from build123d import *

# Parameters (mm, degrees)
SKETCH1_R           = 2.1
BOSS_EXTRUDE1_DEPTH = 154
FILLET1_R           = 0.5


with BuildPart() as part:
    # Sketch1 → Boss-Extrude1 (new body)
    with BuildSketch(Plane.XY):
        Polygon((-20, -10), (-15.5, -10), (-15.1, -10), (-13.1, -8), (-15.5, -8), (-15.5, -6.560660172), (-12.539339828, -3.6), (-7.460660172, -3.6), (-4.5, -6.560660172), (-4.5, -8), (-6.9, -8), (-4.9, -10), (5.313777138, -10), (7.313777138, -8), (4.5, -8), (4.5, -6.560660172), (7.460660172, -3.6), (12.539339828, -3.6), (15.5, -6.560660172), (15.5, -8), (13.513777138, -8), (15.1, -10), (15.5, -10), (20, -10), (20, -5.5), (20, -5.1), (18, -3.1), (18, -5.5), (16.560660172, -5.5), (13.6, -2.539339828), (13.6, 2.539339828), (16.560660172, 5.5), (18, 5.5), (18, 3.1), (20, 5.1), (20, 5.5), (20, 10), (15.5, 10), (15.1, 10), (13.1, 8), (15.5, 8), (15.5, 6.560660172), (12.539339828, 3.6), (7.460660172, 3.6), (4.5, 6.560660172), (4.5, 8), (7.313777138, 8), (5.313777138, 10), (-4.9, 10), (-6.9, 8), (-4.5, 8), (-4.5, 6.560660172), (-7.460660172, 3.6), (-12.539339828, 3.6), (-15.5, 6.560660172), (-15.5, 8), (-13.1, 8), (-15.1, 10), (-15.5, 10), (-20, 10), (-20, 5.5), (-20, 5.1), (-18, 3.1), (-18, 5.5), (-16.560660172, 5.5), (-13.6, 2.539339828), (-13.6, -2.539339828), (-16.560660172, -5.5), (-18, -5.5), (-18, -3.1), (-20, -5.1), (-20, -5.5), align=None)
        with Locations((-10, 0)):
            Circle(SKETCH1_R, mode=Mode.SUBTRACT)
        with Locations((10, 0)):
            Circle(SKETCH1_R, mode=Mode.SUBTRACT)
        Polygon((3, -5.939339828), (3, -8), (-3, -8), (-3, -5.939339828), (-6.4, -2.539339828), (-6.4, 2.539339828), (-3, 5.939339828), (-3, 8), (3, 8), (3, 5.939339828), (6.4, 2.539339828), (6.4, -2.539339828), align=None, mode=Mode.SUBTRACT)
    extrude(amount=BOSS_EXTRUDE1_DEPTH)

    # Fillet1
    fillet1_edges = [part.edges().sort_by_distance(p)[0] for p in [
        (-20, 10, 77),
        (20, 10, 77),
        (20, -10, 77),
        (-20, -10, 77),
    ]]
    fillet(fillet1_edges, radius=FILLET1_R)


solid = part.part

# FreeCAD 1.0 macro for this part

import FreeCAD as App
import Part
import Sketcher
from FreeCAD import Vector


def edges_at(feature, points):
    """Names of the edges that pass closest to the given points."""
    edges = feature.Shape.Edges
    near = lambda p: min(range(len(edges)), key=lambda i: edges[i].distToShape(Part.Vertex(*p))[0])
    return sorted({f"Edge{near(p) + 1}" for p in points})

doc = App.newDocument("Part")
params = doc.addObject("Spreadsheet::Sheet", "Params")
for row, (alias, value) in enumerate([
    ("sketch1_diameter", "4.2 mm"),
    ("sketch1_width", "6 mm"),
    ("sketch1_width2", "4.9 mm"),
    ("sketch1_width3", "2.4 mm"),
    ("pad1_length", "154 mm"),
    ("fillet_radius", "0.5 mm"),
], start=1):
    params.set(f"A{row}", alias)
    params.set(f"B{row}", "=" + value)
    params.setAlias(f"B{row}", alias)

body = doc.addObject("PartDesign::Body", "Body")

# Sketch on XY plane
sketch1 = body.newObject("Sketcher::SketchObject", "Sketch")
sketch1.AttachmentSupport = (doc.getObject("XY_Plane"), [""])
sketch1.MapMode = "FlatFace"
sketch1.addGeometry(Part.LineSegment(Vector(-20, -10, 0), Vector(-15.1, -10, 0)), False)
sketch1.addGeometry(Part.LineSegment(Vector(-15.1, -10, 0), Vector(-13.1, -8, 0)), False)
sketch1.addGeometry(Part.LineSegment(Vector(-13.1, -8, 0), Vector(-15.5, -8, 0)), False)
sketch1.addGeometry(Part.LineSegment(Vector(-15.5, -8, 0), Vector(-15.5, -6.56066, 0)), False)
sketch1.addGeometry(Part.LineSegment(Vector(-15.5, -6.56066, 0), Vector(-12.53934, -3.6, 0)), False)
sketch1.addGeometry(Part.LineSegment(Vector(-12.53934, -3.6, 0), Vector(-7.46066, -3.6, 0)), False)
sketch1.addGeometry(Part.LineSegment(Vector(-7.46066, -3.6, 0), Vector(-4.5, -6.56066, 0)), False)
sketch1.addGeometry(Part.LineSegment(Vector(-4.5, -6.56066, 0), Vector(-4.5, -8, 0)), False)
sketch1.addGeometry(Part.LineSegment(Vector(-4.5, -8, 0), Vector(-6.9, -8, 0)), False)
sketch1.addGeometry(Part.LineSegment(Vector(-6.9, -8, 0), Vector(-4.9, -10, 0)), False)
sketch1.addGeometry(Part.LineSegment(Vector(-4.9, -10, 0), Vector(5.313777, -10, 0)), False)
sketch1.addGeometry(Part.LineSegment(Vector(5.313777, -10, 0), Vector(7.313777, -8, 0)), False)
sketch1.addGeometry(Part.LineSegment(Vector(7.313777, -8, 0), Vector(4.5, -8, 0)), False)
sketch1.addGeometry(Part.LineSegment(Vector(4.5, -8, 0), Vector(4.5, -6.56066, 0)), False)
sketch1.addGeometry(Part.LineSegment(Vector(4.5, -6.56066, 0), Vector(7.46066, -3.6, 0)), False)
sketch1.addGeometry(Part.LineSegment(Vector(7.46066, -3.6, 0), Vector(12.53934, -3.6, 0)), False)
sketch1.addGeometry(Part.LineSegment(Vector(12.53934, -3.6, 0), Vector(15.5, -6.56066, 0)), False)
sketch1.addGeometry(Part.LineSegment(Vector(15.5, -6.56066, 0), Vector(15.5, -8, 0)), False)
sketch1.addGeometry(Part.LineSegment(Vector(15.5, -8, 0), Vector(13.513777, -8, 0)), False)
sketch1.addGeometry(Part.LineSegment(Vector(13.513777, -8, 0), Vector(15.1, -10, 0)), False)
sketch1.addGeometry(Part.LineSegment(Vector(15.1, -10, 0), Vector(20, -10, 0)), False)
sketch1.addGeometry(Part.LineSegment(Vector(20, -10, 0), Vector(20, -5.1, 0)), False)
sketch1.addGeometry(Part.LineSegment(Vector(20, -5.1, 0), Vector(18, -3.1, 0)), False)
sketch1.addGeometry(Part.LineSegment(Vector(18, -3.1, 0), Vector(18, -5.5, 0)), False)
sketch1.addGeometry(Part.LineSegment(Vector(18, -5.5, 0), Vector(16.56066, -5.5, 0)), False)
sketch1.addGeometry(Part.LineSegment(Vector(16.56066, -5.5, 0), Vector(13.6, -2.53934, 0)), False)
sketch1.addGeometry(Part.LineSegment(Vector(13.6, -2.53934, 0), Vector(13.6, 2.53934, 0)), False)
sketch1.addGeometry(Part.LineSegment(Vector(13.6, 2.53934, 0), Vector(16.56066, 5.5, 0)), False)
sketch1.addGeometry(Part.LineSegment(Vector(16.56066, 5.5, 0), Vector(18, 5.5, 0)), False)
sketch1.addGeometry(Part.LineSegment(Vector(18, 5.5, 0), Vector(18, 3.1, 0)), False)
sketch1.addGeometry(Part.LineSegment(Vector(18, 3.1, 0), Vector(20, 5.1, 0)), False)
sketch1.addGeometry(Part.LineSegment(Vector(20, 5.1, 0), Vector(20, 10, 0)), False)
sketch1.addGeometry(Part.LineSegment(Vector(20, 10, 0), Vector(15.1, 10, 0)), False)
sketch1.addGeometry(Part.LineSegment(Vector(15.1, 10, 0), Vector(13.1, 8, 0)), False)
sketch1.addGeometry(Part.LineSegment(Vector(13.1, 8, 0), Vector(15.5, 8, 0)), False)
sketch1.addGeometry(Part.LineSegment(Vector(15.5, 8, 0), Vector(15.5, 6.56066, 0)), False)
sketch1.addGeometry(Part.LineSegment(Vector(15.5, 6.56066, 0), Vector(12.53934, 3.6, 0)), False)
sketch1.addGeometry(Part.LineSegment(Vector(12.53934, 3.6, 0), Vector(7.46066, 3.6, 0)), False)
sketch1.addGeometry(Part.LineSegment(Vector(7.46066, 3.6, 0), Vector(4.5, 6.56066, 0)), False)
sketch1.addGeometry(Part.LineSegment(Vector(4.5, 6.56066, 0), Vector(4.5, 8, 0)), False)
sketch1.addGeometry(Part.LineSegment(Vector(4.5, 8, 0), Vector(7.313777, 8, 0)), False)
sketch1.addGeometry(Part.LineSegment(Vector(7.313777, 8, 0), Vector(5.313777, 10, 0)), False)
sketch1.addGeometry(Part.LineSegment(Vector(5.313777, 10, 0), Vector(-4.9, 10, 0)), False)
sketch1.addGeometry(Part.LineSegment(Vector(-4.9, 10, 0), Vector(-6.9, 8, 0)), False)
sketch1.addGeometry(Part.LineSegment(Vector(-6.9, 8, 0), Vector(-4.5, 8, 0)), False)
sketch1.addGeometry(Part.LineSegment(Vector(-4.5, 8, 0), Vector(-4.5, 6.56066, 0)), False)
sketch1.addGeometry(Part.LineSegment(Vector(-4.5, 6.56066, 0), Vector(-7.46066, 3.6, 0)), False)
sketch1.addGeometry(Part.LineSegment(Vector(-7.46066, 3.6, 0), Vector(-12.53934, 3.6, 0)), False)
sketch1.addGeometry(Part.LineSegment(Vector(-12.53934, 3.6, 0), Vector(-15.5, 6.56066, 0)), False)
sketch1.addGeometry(Part.LineSegment(Vector(-15.5, 6.56066, 0), Vector(-15.5, 8, 0)), False)
sketch1.addGeometry(Part.LineSegment(Vector(-15.5, 8, 0), Vector(-13.1, 8, 0)), False)
sketch1.addGeometry(Part.LineSegment(Vector(-13.1, 8, 0), Vector(-15.1, 10, 0)), False)
sketch1.addGeometry(Part.LineSegment(Vector(-15.1, 10, 0), Vector(-20, 10, 0)), False)
sketch1.addGeometry(Part.LineSegment(Vector(-20, 10, 0), Vector(-20, 5.1, 0)), False)
sketch1.addGeometry(Part.LineSegment(Vector(-20, 5.1, 0), Vector(-18, 3.1, 0)), False)
sketch1.addGeometry(Part.LineSegment(Vector(-18, 3.1, 0), Vector(-18, 5.5, 0)), False)
sketch1.addGeometry(Part.LineSegment(Vector(-18, 5.5, 0), Vector(-16.56066, 5.5, 0)), False)
sketch1.addGeometry(Part.LineSegment(Vector(-16.56066, 5.5, 0), Vector(-13.6, 2.53934, 0)), False)
sketch1.addGeometry(Part.LineSegment(Vector(-13.6, 2.53934, 0), Vector(-13.6, -2.53934, 0)), False)
sketch1.addGeometry(Part.LineSegment(Vector(-13.6, -2.53934, 0), Vector(-16.56066, -5.5, 0)), False)
sketch1.addGeometry(Part.LineSegment(Vector(-16.56066, -5.5, 0), Vector(-18, -5.5, 0)), False)
sketch1.addGeometry(Part.LineSegment(Vector(-18, -5.5, 0), Vector(-18, -3.1, 0)), False)
sketch1.addGeometry(Part.LineSegment(Vector(-18, -3.1, 0), Vector(-20, -5.1, 0)), False)
sketch1.addGeometry(Part.LineSegment(Vector(-20, -5.1, 0), Vector(-20, -10, 0)), False)
sketch1.addGeometry(Part.Circle(Vector(-10, 0, 0), Vector(0, 0, 1), 2.1), False)
sketch1.addGeometry(Part.LineSegment(Vector(6.4, -2.53934, 0), Vector(3, -5.93934, 0)), False)
sketch1.addGeometry(Part.LineSegment(Vector(3, -5.93934, 0), Vector(3, -8, 0)), False)
sketch1.addGeometry(Part.LineSegment(Vector(3, -8, 0), Vector(-3, -8, 0)), False)
sketch1.addGeometry(Part.LineSegment(Vector(-3, -8, 0), Vector(-3, -5.93934, 0)), False)
sketch1.addGeometry(Part.LineSegment(Vector(-3, -5.93934, 0), Vector(-6.4, -2.53934, 0)), False)
sketch1.addGeometry(Part.LineSegment(Vector(-6.4, -2.53934, 0), Vector(-6.4, 2.53934, 0)), False)
sketch1.addGeometry(Part.LineSegment(Vector(-6.4, 2.53934, 0), Vector(-3, 5.93934, 0)), False)
sketch1.addGeometry(Part.LineSegment(Vector(-3, 5.93934, 0), Vector(-3, 8, 0)), False)
sketch1.addGeometry(Part.LineSegment(Vector(-3, 8, 0), Vector(3, 8, 0)), False)
sketch1.addGeometry(Part.LineSegment(Vector(3, 8, 0), Vector(3, 5.93934, 0)), False)
sketch1.addGeometry(Part.LineSegment(Vector(3, 5.93934, 0), Vector(6.4, 2.53934, 0)), False)
sketch1.addGeometry(Part.LineSegment(Vector(6.4, 2.53934, 0), Vector(6.4, -2.53934, 0)), False)
sketch1.addGeometry(Part.Circle(Vector(10, 0, 0), Vector(0, 0, 1), 2.1), False)
sketch1.addConstraint(Sketcher.Constraint("Coincident", 0, 2, 1, 1))
sketch1.addConstraint(Sketcher.Constraint("Coincident", 1, 2, 2, 1))
sketch1.addConstraint(Sketcher.Constraint("Coincident", 2, 2, 3, 1))
sketch1.addConstraint(Sketcher.Constraint("Coincident", 3, 2, 4, 1))
sketch1.addConstraint(Sketcher.Constraint("Coincident", 4, 2, 5, 1))
sketch1.addConstraint(Sketcher.Constraint("Coincident", 5, 2, 6, 1))
sketch1.addConstraint(Sketcher.Constraint("Coincident", 6, 2, 7, 1))
sketch1.addConstraint(Sketcher.Constraint("Coincident", 7, 2, 8, 1))
sketch1.addConstraint(Sketcher.Constraint("Coincident", 8, 2, 9, 1))
sketch1.addConstraint(Sketcher.Constraint("Coincident", 9, 2, 10, 1))
sketch1.addConstraint(Sketcher.Constraint("Coincident", 10, 2, 11, 1))
sketch1.addConstraint(Sketcher.Constraint("Coincident", 11, 2, 12, 1))
sketch1.addConstraint(Sketcher.Constraint("Coincident", 12, 2, 13, 1))
sketch1.addConstraint(Sketcher.Constraint("Coincident", 13, 2, 14, 1))
sketch1.addConstraint(Sketcher.Constraint("Coincident", 14, 2, 15, 1))
sketch1.addConstraint(Sketcher.Constraint("Coincident", 15, 2, 16, 1))
sketch1.addConstraint(Sketcher.Constraint("Coincident", 16, 2, 17, 1))
sketch1.addConstraint(Sketcher.Constraint("Coincident", 17, 2, 18, 1))
sketch1.addConstraint(Sketcher.Constraint("Coincident", 18, 2, 19, 1))
sketch1.addConstraint(Sketcher.Constraint("Coincident", 19, 2, 20, 1))
sketch1.addConstraint(Sketcher.Constraint("Coincident", 20, 2, 21, 1))
sketch1.addConstraint(Sketcher.Constraint("Coincident", 21, 2, 22, 1))
sketch1.addConstraint(Sketcher.Constraint("Coincident", 22, 2, 23, 1))
sketch1.addConstraint(Sketcher.Constraint("Coincident", 23, 2, 24, 1))
sketch1.addConstraint(Sketcher.Constraint("Coincident", 24, 2, 25, 1))
sketch1.addConstraint(Sketcher.Constraint("Coincident", 25, 2, 26, 1))
sketch1.addConstraint(Sketcher.Constraint("Coincident", 26, 2, 27, 1))
sketch1.addConstraint(Sketcher.Constraint("Coincident", 27, 2, 28, 1))
sketch1.addConstraint(Sketcher.Constraint("Coincident", 28, 2, 29, 1))
sketch1.addConstraint(Sketcher.Constraint("Coincident", 29, 2, 30, 1))
sketch1.addConstraint(Sketcher.Constraint("Coincident", 30, 2, 31, 1))
sketch1.addConstraint(Sketcher.Constraint("Coincident", 31, 2, 32, 1))
sketch1.addConstraint(Sketcher.Constraint("Coincident", 32, 2, 33, 1))
sketch1.addConstraint(Sketcher.Constraint("Coincident", 33, 2, 34, 1))
sketch1.addConstraint(Sketcher.Constraint("Coincident", 34, 2, 35, 1))
sketch1.addConstraint(Sketcher.Constraint("Coincident", 35, 2, 36, 1))
sketch1.addConstraint(Sketcher.Constraint("Coincident", 36, 2, 37, 1))
sketch1.addConstraint(Sketcher.Constraint("Coincident", 37, 2, 38, 1))
sketch1.addConstraint(Sketcher.Constraint("Coincident", 38, 2, 39, 1))
sketch1.addConstraint(Sketcher.Constraint("Coincident", 39, 2, 40, 1))
sketch1.addConstraint(Sketcher.Constraint("Coincident", 40, 2, 41, 1))
sketch1.addConstraint(Sketcher.Constraint("Coincident", 41, 2, 42, 1))
sketch1.addConstraint(Sketcher.Constraint("Coincident", 42, 2, 43, 1))
sketch1.addConstraint(Sketcher.Constraint("Coincident", 43, 2, 44, 1))
sketch1.addConstraint(Sketcher.Constraint("Coincident", 44, 2, 45, 1))
sketch1.addConstraint(Sketcher.Constraint("Coincident", 45, 2, 46, 1))
sketch1.addConstraint(Sketcher.Constraint("Coincident", 46, 2, 47, 1))
sketch1.addConstraint(Sketcher.Constraint("Coincident", 47, 2, 48, 1))
sketch1.addConstraint(Sketcher.Constraint("Coincident", 48, 2, 49, 1))
sketch1.addConstraint(Sketcher.Constraint("Coincident", 49, 2, 50, 1))
sketch1.addConstraint(Sketcher.Constraint("Coincident", 50, 2, 51, 1))
sketch1.addConstraint(Sketcher.Constraint("Coincident", 51, 2, 52, 1))
sketch1.addConstraint(Sketcher.Constraint("Coincident", 52, 2, 53, 1))
sketch1.addConstraint(Sketcher.Constraint("Coincident", 53, 2, 54, 1))
sketch1.addConstraint(Sketcher.Constraint("Coincident", 54, 2, 55, 1))
sketch1.addConstraint(Sketcher.Constraint("Coincident", 55, 2, 56, 1))
sketch1.addConstraint(Sketcher.Constraint("Coincident", 56, 2, 57, 1))
sketch1.addConstraint(Sketcher.Constraint("Coincident", 57, 2, 58, 1))
sketch1.addConstraint(Sketcher.Constraint("Coincident", 58, 2, 59, 1))
sketch1.addConstraint(Sketcher.Constraint("Coincident", 59, 2, 60, 1))
sketch1.addConstraint(Sketcher.Constraint("Coincident", 60, 2, 61, 1))
sketch1.addConstraint(Sketcher.Constraint("Coincident", 61, 2, 62, 1))
sketch1.addConstraint(Sketcher.Constraint("Coincident", 62, 2, 63, 1))
sketch1.addConstraint(Sketcher.Constraint("Coincident", 63, 2, 0, 1))
sketch1.addConstraint(Sketcher.Constraint("Coincident", 65, 2, 66, 1))
sketch1.addConstraint(Sketcher.Constraint("Coincident", 66, 2, 67, 1))
sketch1.addConstraint(Sketcher.Constraint("Coincident", 67, 2, 68, 1))
sketch1.addConstraint(Sketcher.Constraint("Coincident", 68, 2, 69, 1))
sketch1.addConstraint(Sketcher.Constraint("Coincident", 69, 2, 70, 1))
sketch1.addConstraint(Sketcher.Constraint("Coincident", 70, 2, 71, 1))
sketch1.addConstraint(Sketcher.Constraint("Coincident", 71, 2, 72, 1))
sketch1.addConstraint(Sketcher.Constraint("Coincident", 72, 2, 73, 1))
sketch1.addConstraint(Sketcher.Constraint("Coincident", 73, 2, 74, 1))
sketch1.addConstraint(Sketcher.Constraint("Coincident", 74, 2, 75, 1))
sketch1.addConstraint(Sketcher.Constraint("Coincident", 75, 2, 76, 1))
sketch1.addConstraint(Sketcher.Constraint("Coincident", 76, 2, 65, 1))
sketch1.addConstraint(Sketcher.Constraint("Horizontal", 0))
sketch1.addConstraint(Sketcher.Constraint("Horizontal", 2))
sketch1.addConstraint(Sketcher.Constraint("Vertical", 3))
sketch1.addConstraint(Sketcher.Constraint("Horizontal", 5))
sketch1.addConstraint(Sketcher.Constraint("Vertical", 7))
sketch1.addConstraint(Sketcher.Constraint("Horizontal", 8))
sketch1.addConstraint(Sketcher.Constraint("Horizontal", 10))
sketch1.addConstraint(Sketcher.Constraint("Horizontal", 12))
sketch1.addConstraint(Sketcher.Constraint("Vertical", 13))
sketch1.addConstraint(Sketcher.Constraint("Horizontal", 15))
sketch1.addConstraint(Sketcher.Constraint("Vertical", 17))
sketch1.addConstraint(Sketcher.Constraint("Horizontal", 18))
sketch1.addConstraint(Sketcher.Constraint("Horizontal", 20))
sketch1.addConstraint(Sketcher.Constraint("Vertical", 21))
sketch1.addConstraint(Sketcher.Constraint("Vertical", 23))
sketch1.addConstraint(Sketcher.Constraint("Horizontal", 24))
sketch1.addConstraint(Sketcher.Constraint("Vertical", 26))
sketch1.addConstraint(Sketcher.Constraint("Horizontal", 28))
sketch1.addConstraint(Sketcher.Constraint("Vertical", 29))
sketch1.addConstraint(Sketcher.Constraint("Vertical", 31))
sketch1.addConstraint(Sketcher.Constraint("Horizontal", 32))
sketch1.addConstraint(Sketcher.Constraint("Horizontal", 34))
sketch1.addConstraint(Sketcher.Constraint("Vertical", 35))
sketch1.addConstraint(Sketcher.Constraint("Horizontal", 37))
sketch1.addConstraint(Sketcher.Constraint("Vertical", 39))
sketch1.addConstraint(Sketcher.Constraint("Horizontal", 40))
sketch1.addConstraint(Sketcher.Constraint("Horizontal", 42))
sketch1.addConstraint(Sketcher.Constraint("Horizontal", 44))
sketch1.addConstraint(Sketcher.Constraint("Vertical", 45))
sketch1.addConstraint(Sketcher.Constraint("Horizontal", 47))
sketch1.addConstraint(Sketcher.Constraint("Vertical", 49))
sketch1.addConstraint(Sketcher.Constraint("Horizontal", 50))
sketch1.addConstraint(Sketcher.Constraint("Horizontal", 52))
sketch1.addConstraint(Sketcher.Constraint("Vertical", 53))
sketch1.addConstraint(Sketcher.Constraint("Vertical", 55))
sketch1.addConstraint(Sketcher.Constraint("Horizontal", 56))
sketch1.addConstraint(Sketcher.Constraint("Vertical", 58))
sketch1.addConstraint(Sketcher.Constraint("Horizontal", 60))
sketch1.addConstraint(Sketcher.Constraint("Vertical", 61))
sketch1.addConstraint(Sketcher.Constraint("Vertical", 63))
sketch1.addConstraint(Sketcher.Constraint("Vertical", 66))
sketch1.addConstraint(Sketcher.Constraint("Horizontal", 67))
sketch1.addConstraint(Sketcher.Constraint("Vertical", 68))
sketch1.addConstraint(Sketcher.Constraint("Vertical", 70))
sketch1.addConstraint(Sketcher.Constraint("Vertical", 72))
sketch1.addConstraint(Sketcher.Constraint("Horizontal", 73))
sketch1.addConstraint(Sketcher.Constraint("Vertical", 74))
sketch1.addConstraint(Sketcher.Constraint("Vertical", 76))
sketch1.addConstraint(Sketcher.Constraint("Equal", 64, 77))
sketch1.addConstraint(Sketcher.Constraint("Symmetric", 64, 3, 77, 3, -1, 1))
sketch1.addConstraint(Sketcher.Constraint("Symmetric", 0, 2, 32, 2, -1, 1))
sketch1.addConstraint(Sketcher.Constraint("Symmetric", 1, 2, 33, 2, -1, 1))
sketch1.addConstraint(Sketcher.Constraint("Symmetric", 3, 2, 35, 2, -1, 1))
sketch1.addConstraint(Sketcher.Constraint("Symmetric", 4, 2, 36, 2, -1, 1))
sketch1.addConstraint(Sketcher.Constraint("Symmetric", 6, 2, 38, 2, -1, 1))
sketch1.addConstraint(Sketcher.Constraint("Symmetric", 12, 2, 44, 2, -1, 1))
sketch1.addConstraint(Sketcher.Constraint("Symmetric", 14, 2, 46, 2, -1, 1))
sketch1.addConstraint(Sketcher.Constraint("Symmetric", 16, 2, 48, 2, -1, 1))
sketch1.addConstraint(Sketcher.Constraint("Symmetric", 19, 2, 51, 2, -1, 1))
sketch1.addConstraint(Sketcher.Constraint("Symmetric", 21, 2, 53, 2, -1, 1))
sketch1.addConstraint(Sketcher.Constraint("Symmetric", 22, 2, 54, 2, -1, 1))
sketch1.addConstraint(Sketcher.Constraint("Symmetric", 24, 2, 56, 2, -1, 1))
sketch1.addConstraint(Sketcher.Constraint("Symmetric", 25, 2, 57, 2, -1, 1))
sketch1.addConstraint(Sketcher.Constraint("Symmetric", 27, 2, 59, 2, -1, 1))
sketch1.addConstraint(Sketcher.Constraint("Symmetric", 29, 2, 61, 2, -1, 1))
sketch1.addConstraint(Sketcher.Constraint("Symmetric", 30, 2, 62, 2, -1, 1))
sketch1.addConstraint(Sketcher.Constraint("Symmetric", 65, 2, 71, 2, -1, 1))
sketch1.addConstraint(Sketcher.Constraint("Symmetric", 67, 2, 73, 2, -1, 1))
sketch1.addConstraint(Sketcher.Constraint("Symmetric", 69, 2, 75, 2, -1, 1))
sketch1.addConstraint(Sketcher.Constraint("Symmetric", 7, 2, 12, 2, -2))
sketch1.addConstraint(Sketcher.Constraint("Symmetric", 5, 2, 14, 2, -2))
sketch1.addConstraint(Sketcher.Constraint("Symmetric", 3, 2, 16, 2, -2))
sketch1.addConstraint(Sketcher.Constraint("Symmetric", 0, 2, 19, 2, -2))
sketch1.addConstraint(Sketcher.Constraint("Symmetric", 33, 2, 50, 2, -2))
sketch1.addConstraint(Sketcher.Constraint("Symmetric", 30, 2, 53, 2, -2))
sketch1.addConstraint(Sketcher.Constraint("Symmetric", 29, 2, 54, 2, -2))
sketch1.addConstraint(Sketcher.Constraint("Symmetric", 27, 2, 56, 2, -2))
sketch1.addConstraint(Sketcher.Constraint("Symmetric", 65, 2, 68, 2, -2))
sketch1.addConstraint(Sketcher.Constraint("Symmetric", 11, 2, 40, 2, -1))
sketch1.addConstraint(Sketcher.Constraint("Symmetric", 10, 2, 41, 2, -1))
sketch1.addConstraint(Sketcher.Constraint("PointOnObject", 64, 3, -1))
sketch1.addConstraint(Sketcher.Constraint("Parallel", 1, 4))
sketch1.addConstraint(Sketcher.Constraint("Perpendicular", 4, 6))
sketch1.addConstraint(Sketcher.Constraint("Parallel", 6, 9))
sketch1.addConstraint(Sketcher.Constraint("Perpendicular", 9, 11))
sketch1.addConstraint(Sketcher.Constraint("Parallel", 11, 14))
sketch1.addConstraint(Sketcher.Constraint("Perpendicular", 14, 16))
sketch1.addConstraint(Sketcher.Constraint("Parallel", 16, 22))
sketch1.addConstraint(Sketcher.Constraint("Parallel", 22, 25))
sketch1.addConstraint(Sketcher.Constraint("Perpendicular", 25, 27))
sketch1.addConstraint(Sketcher.Constraint("Parallel", 27, 30))
sketch1.addConstraint(Sketcher.Constraint("Perpendicular", 36, 38))
sketch1.addConstraint(Sketcher.Constraint("Perpendicular", 41, 43))
sketch1.addConstraint(Sketcher.Constraint("Parallel", 43, 46))
sketch1.addConstraint(Sketcher.Constraint("Perpendicular", 46, 48))
sketch1.addConstraint(Sketcher.Constraint("Perpendicular", 57, 59))
sketch1.addConstraint(Sketcher.Constraint("Parallel", 62, 65))
sketch1.addConstraint(Sketcher.Constraint("Perpendicular", 65, 69))
sketch1.addConstraint(Sketcher.Constraint("Perpendicular", 69, 71))
sketch1.addConstraint(Sketcher.Constraint("Perpendicular", 71, 75))
sketch1.addConstraint(Sketcher.Constraint("Horizontal", 3, 2, 6, 2))
sketch1.addConstraint(Sketcher.Constraint("Horizontal", 2, 2, 7, 2))
sketch1.addConstraint(Sketcher.Constraint("Horizontal", 0, 2, 9, 2))
sketch1.addConstraint(Sketcher.Constraint("Horizontal", 12, 2, 17, 2))
sketch1.addConstraint(Sketcher.Constraint("Horizontal", 18, 2, 66, 2))
sketch1.addConstraint(Sketcher.Constraint("Horizontal", 58, 2, 69, 2))
sketch1.addConstraint(Sketcher.Constraint("Vertical", 9, 2, 42, 2))
sketch1.addConstraint(Sketcher.Constraint("Equal", 2, 8))
sketch1.addConstraint(Sketcher.Constraint("Equal", 60, 3))
sketch1.addConstraint(Sketcher.Constraint("Equal", 52, 21))
sketch1.addConstraint(Sketcher.Constraint("Equal", 50, 23))
sketch1.addConstraint(Sketcher.Constraint("Equal", 47, 26))
sketch1.addConstraint(Sketcher.Constraint("Equal", 11, 22))
sketch1.addConstraint(Sketcher.Constraint("Equal", 16, 25))
sketch1.addConstraint(Sketcher.Constraint("Diameter", 64, 4.2))
sketch1.addConstraint(Sketcher.Constraint("DistanceX", 67, 2, 67, 1, 6.0))
sketch1.addConstraint(Sketcher.Constraint("DistanceX", 0, 1, 0, 2, 4.9))
sketch1.addConstraint(Sketcher.Constraint("DistanceX", 2, 2, 2, 1, 2.4))
sketch1.addConstraint(Sketcher.Constraint("DistanceX", 64, 3, -1, 1, 10.0))
sketch1.addConstraint(Sketcher.Constraint("DistanceY", 0, 2, -1, 1, 10.0))
sketch1.addConstraint(Sketcher.Constraint("DistanceY", 1, 2, -1, 1, 8.0))
sketch1.addConstraint(Sketcher.Constraint("DistanceX", -1, 1, 20, 2, 20.0))
sketch1.addConstraint(Sketcher.Constraint("DistanceY", 4, 2, -1, 1, 3.6))
sketch1.addConstraint(Sketcher.Constraint("DistanceX", 69, 2, -1, 1, 6.4))
sketch1.addConstraint(Sketcher.Constraint("DistanceX", 5, 1, 5, 2, 5.07868))
sketch1.addConstraint(Sketcher.Constraint("DistanceX", 10, 1, 10, 2, 10.213777))
sketch1.addConstraint(Sketcher.Constraint("DistanceX", 18, 2, 18, 1, 1.986223))
sketch1.setExpression("Constraints[190]", "Params.sketch1_diameter")
sketch1.setExpression("Constraints[191]", "Params.sketch1_width")
sketch1.setExpression("Constraints[192]", "Params.sketch1_width2")
sketch1.setExpression("Constraints[193]", "Params.sketch1_width3")
pad1 = body.newObject("PartDesign::Pad", "Pad")
pad1.Profile = sketch1
pad1.setExpression("Length", "Params.pad1_length")
doc.recompute()

fillet = body.newObject("PartDesign::Fillet", "Fillet")
fillet.Base = (pad1, edges_at(pad1, [
    (-20, 10, 77),
    (20, 10, 77),
    (20, -10, 77),
    (-20, -10, 77),
]))
fillet.setExpression("Radius", "Params.fillet_radius")

doc.recompute()
